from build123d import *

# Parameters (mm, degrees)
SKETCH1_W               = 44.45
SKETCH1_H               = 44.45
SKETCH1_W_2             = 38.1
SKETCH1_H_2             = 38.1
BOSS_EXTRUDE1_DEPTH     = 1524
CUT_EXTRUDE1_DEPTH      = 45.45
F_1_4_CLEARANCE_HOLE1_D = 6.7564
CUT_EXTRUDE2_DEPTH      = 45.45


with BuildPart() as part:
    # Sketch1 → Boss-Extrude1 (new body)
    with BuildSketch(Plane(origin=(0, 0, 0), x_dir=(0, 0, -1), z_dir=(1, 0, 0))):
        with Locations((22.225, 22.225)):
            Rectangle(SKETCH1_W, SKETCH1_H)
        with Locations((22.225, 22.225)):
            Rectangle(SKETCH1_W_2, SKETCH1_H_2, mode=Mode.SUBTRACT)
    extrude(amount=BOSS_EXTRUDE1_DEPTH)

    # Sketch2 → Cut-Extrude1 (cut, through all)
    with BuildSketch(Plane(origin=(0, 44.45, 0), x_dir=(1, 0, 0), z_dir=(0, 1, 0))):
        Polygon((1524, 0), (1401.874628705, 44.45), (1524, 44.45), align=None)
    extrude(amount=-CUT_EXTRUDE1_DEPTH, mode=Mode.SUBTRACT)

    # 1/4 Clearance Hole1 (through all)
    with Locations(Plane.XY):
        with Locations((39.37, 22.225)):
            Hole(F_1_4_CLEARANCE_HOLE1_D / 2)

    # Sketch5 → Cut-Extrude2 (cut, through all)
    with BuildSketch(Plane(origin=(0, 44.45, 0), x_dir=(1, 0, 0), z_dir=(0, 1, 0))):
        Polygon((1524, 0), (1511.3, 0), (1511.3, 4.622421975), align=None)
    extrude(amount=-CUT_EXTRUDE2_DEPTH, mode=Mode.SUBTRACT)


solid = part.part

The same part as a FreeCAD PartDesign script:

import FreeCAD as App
import Part
import Sketcher
from FreeCAD import Vector
Q = App.Units.Quantity


def add_polygon(sketch, points):
    """Adds a closed chain of lines whose ends are joined by coincident constraints."""
    first, n = sketch.GeometryCount, len(points)
    for a, b in zip(points, points[1:] + points[:1]):
        sketch.addGeometry(Part.LineSegment(App.Vector(*a, 0), App.Vector(*b, 0)), False)
    for i in range(n):
        sketch.addConstraint(Sketcher.Constraint("Coincident", first + i, 2, first + (i + 1) % n, 1))

doc = App.newDocument("Part")
body = doc.addObject("PartDesign::Body", "Body")

sketch1 = body.newObject("Sketcher::SketchObject", "Sketch")
sketch1.AttachmentSupport = (doc.getObject("YZ_Plane"), [""])
sketch1.MapMode = "FlatFace"
add_polygon(sketch1, [(44, 0), (0, 0), (0, -44), (44, -44)])
add_polygon(sketch1, [(3, -41), (3, -3), (41, -3), (41, -41)])
sketch1.addConstraint([
    Sketcher.Constraint("Horizontal", 0),
    Sketcher.Constraint("Vertical", 1),
    Sketcher.Constraint("Horizontal", 2),
    Sketcher.Constraint("Vertical", 3),
    Sketcher.Constraint("Vertical", 4),
    Sketcher.Constraint("Horizontal", 5),
    Sketcher.Constraint("Vertical", 6),
    Sketcher.Constraint("Horizontal", 7),
    Sketcher.Constraint("Coincident", 0, 2, -1, 1),
    Sketcher.Constraint("Equal", 2, 1),
    Sketcher.Constraint("Equal", 7, 4),
    Sketcher.Constraint("DistanceX", 5, 1, 5, 2, Q("1.5 in")),
    Sketcher.Constraint("DistanceX", 0, 2, 0, 1, Q("1.75 in")),
    Sketcher.Constraint("DistanceX", -1, 1, 4, 2, Q("0.125 in")),
    Sketcher.Constraint("DistanceY", 4, 2, -1, 1, Q("0.125 in")),
])
pad1 = body.newObject("PartDesign::Pad", "Pad")
pad1.Profile = sketch1
pad1.Length = Q("60 in")

sketch2 = body.newObject("Sketcher::SketchObject", "Sketch001")
sketch2.AttachmentSupport = (doc.getObject("XZ_Plane"), [""])
sketch2.MapMode = "FlatFace"
sketch2.AttachmentOffset = App.Placement(Vector(0, 0, -1.75 * 25.4), App.Rotation())
add_polygon(sketch2, [(1402, -44), (1524, 0), (1524, -44)])
sketch2.addConstraint([
    Sketcher.Constraint("Vertical", 1),
    Sketcher.Constraint("Horizontal", 2),
    Sketcher.Constraint("PointOnObject", 0, 2, -1),
    Sketcher.Constraint("DistanceX", -1, 1, 0, 2, Q("60 in")),
    Sketcher.Constraint("Angle", 0, Q("20 deg")),
    Sketcher.Constraint("DistanceY", 1, 2, 1, 1, Q("1.75 in")),
])
pocket1 = body.newObject("PartDesign::Pocket", "Pocket")
pocket1.Profile = sketch2
pocket1.Type = "ThroughAll"
pocket1.Reversed = True

sketch3 = body.newObject("Sketcher::SketchObject", "Sketch002")
sketch3.AttachmentSupport = (doc.getObject("XY_Plane"), [""])
sketch3.MapMode = "FlatFace"
sketch3.addGeometry(Part.Circle(Vector(39.4, 22.2, 0), Vector(0, 0, 1), 3.4), False)
sketch3.addConstraint([
    Sketcher.Constraint("Diameter", 0, Q("0.266 in")),
    Sketcher.Constraint("DistanceX", -1, 1, 0, 3, Q("1.55 in")),
    Sketcher.Constraint("DistanceY", -1, 1, 0, 3, Q("0.875 in")),
])
doc.recompute()
hole = body.newObject("PartDesign::Hole", "Hole")
hole.Profile = sketch3
hole.ThreadType = "None"
hole.Diameter = Q("0.266 in")
hole.DepthType = "ThroughAll"

sketch4 = body.newObject("Sketcher::SketchObject", "Sketch003")
sketch4.AttachmentSupport = (doc.getObject("XZ_Plane"), [""])
sketch4.MapMode = "FlatFace"
sketch4.AttachmentOffset = App.Placement(Vector(0, 0, -1.75 * 25.4), App.Rotation())
add_polygon(sketch4, [(1511.3, 0), (1524, 0), (1511.3, -4.6)])
sketch4.addConstraint([
    Sketcher.Constraint("Horizontal", 0),
    Sketcher.Constraint("Vertical", 2),
    Sketcher.Constraint("PointOnObject", 0, 2, -1),
    Sketcher.Constraint("DistanceX", 0, 1, 0, 2, Q("0.5 in")),
    Sketcher.Constraint("DistanceX", -1, 1, 0, 2, Q("60 in")),
    Sketcher.Constraint("Angle", 1, Q("-160 deg")),
])
pocket2 = body.newObject("PartDesign::Pocket", "Pocket001")
pocket2.Profile = sketch4
pocket2.Type = "ThroughAll"
pocket2.Reversed = True

doc.recompute()
